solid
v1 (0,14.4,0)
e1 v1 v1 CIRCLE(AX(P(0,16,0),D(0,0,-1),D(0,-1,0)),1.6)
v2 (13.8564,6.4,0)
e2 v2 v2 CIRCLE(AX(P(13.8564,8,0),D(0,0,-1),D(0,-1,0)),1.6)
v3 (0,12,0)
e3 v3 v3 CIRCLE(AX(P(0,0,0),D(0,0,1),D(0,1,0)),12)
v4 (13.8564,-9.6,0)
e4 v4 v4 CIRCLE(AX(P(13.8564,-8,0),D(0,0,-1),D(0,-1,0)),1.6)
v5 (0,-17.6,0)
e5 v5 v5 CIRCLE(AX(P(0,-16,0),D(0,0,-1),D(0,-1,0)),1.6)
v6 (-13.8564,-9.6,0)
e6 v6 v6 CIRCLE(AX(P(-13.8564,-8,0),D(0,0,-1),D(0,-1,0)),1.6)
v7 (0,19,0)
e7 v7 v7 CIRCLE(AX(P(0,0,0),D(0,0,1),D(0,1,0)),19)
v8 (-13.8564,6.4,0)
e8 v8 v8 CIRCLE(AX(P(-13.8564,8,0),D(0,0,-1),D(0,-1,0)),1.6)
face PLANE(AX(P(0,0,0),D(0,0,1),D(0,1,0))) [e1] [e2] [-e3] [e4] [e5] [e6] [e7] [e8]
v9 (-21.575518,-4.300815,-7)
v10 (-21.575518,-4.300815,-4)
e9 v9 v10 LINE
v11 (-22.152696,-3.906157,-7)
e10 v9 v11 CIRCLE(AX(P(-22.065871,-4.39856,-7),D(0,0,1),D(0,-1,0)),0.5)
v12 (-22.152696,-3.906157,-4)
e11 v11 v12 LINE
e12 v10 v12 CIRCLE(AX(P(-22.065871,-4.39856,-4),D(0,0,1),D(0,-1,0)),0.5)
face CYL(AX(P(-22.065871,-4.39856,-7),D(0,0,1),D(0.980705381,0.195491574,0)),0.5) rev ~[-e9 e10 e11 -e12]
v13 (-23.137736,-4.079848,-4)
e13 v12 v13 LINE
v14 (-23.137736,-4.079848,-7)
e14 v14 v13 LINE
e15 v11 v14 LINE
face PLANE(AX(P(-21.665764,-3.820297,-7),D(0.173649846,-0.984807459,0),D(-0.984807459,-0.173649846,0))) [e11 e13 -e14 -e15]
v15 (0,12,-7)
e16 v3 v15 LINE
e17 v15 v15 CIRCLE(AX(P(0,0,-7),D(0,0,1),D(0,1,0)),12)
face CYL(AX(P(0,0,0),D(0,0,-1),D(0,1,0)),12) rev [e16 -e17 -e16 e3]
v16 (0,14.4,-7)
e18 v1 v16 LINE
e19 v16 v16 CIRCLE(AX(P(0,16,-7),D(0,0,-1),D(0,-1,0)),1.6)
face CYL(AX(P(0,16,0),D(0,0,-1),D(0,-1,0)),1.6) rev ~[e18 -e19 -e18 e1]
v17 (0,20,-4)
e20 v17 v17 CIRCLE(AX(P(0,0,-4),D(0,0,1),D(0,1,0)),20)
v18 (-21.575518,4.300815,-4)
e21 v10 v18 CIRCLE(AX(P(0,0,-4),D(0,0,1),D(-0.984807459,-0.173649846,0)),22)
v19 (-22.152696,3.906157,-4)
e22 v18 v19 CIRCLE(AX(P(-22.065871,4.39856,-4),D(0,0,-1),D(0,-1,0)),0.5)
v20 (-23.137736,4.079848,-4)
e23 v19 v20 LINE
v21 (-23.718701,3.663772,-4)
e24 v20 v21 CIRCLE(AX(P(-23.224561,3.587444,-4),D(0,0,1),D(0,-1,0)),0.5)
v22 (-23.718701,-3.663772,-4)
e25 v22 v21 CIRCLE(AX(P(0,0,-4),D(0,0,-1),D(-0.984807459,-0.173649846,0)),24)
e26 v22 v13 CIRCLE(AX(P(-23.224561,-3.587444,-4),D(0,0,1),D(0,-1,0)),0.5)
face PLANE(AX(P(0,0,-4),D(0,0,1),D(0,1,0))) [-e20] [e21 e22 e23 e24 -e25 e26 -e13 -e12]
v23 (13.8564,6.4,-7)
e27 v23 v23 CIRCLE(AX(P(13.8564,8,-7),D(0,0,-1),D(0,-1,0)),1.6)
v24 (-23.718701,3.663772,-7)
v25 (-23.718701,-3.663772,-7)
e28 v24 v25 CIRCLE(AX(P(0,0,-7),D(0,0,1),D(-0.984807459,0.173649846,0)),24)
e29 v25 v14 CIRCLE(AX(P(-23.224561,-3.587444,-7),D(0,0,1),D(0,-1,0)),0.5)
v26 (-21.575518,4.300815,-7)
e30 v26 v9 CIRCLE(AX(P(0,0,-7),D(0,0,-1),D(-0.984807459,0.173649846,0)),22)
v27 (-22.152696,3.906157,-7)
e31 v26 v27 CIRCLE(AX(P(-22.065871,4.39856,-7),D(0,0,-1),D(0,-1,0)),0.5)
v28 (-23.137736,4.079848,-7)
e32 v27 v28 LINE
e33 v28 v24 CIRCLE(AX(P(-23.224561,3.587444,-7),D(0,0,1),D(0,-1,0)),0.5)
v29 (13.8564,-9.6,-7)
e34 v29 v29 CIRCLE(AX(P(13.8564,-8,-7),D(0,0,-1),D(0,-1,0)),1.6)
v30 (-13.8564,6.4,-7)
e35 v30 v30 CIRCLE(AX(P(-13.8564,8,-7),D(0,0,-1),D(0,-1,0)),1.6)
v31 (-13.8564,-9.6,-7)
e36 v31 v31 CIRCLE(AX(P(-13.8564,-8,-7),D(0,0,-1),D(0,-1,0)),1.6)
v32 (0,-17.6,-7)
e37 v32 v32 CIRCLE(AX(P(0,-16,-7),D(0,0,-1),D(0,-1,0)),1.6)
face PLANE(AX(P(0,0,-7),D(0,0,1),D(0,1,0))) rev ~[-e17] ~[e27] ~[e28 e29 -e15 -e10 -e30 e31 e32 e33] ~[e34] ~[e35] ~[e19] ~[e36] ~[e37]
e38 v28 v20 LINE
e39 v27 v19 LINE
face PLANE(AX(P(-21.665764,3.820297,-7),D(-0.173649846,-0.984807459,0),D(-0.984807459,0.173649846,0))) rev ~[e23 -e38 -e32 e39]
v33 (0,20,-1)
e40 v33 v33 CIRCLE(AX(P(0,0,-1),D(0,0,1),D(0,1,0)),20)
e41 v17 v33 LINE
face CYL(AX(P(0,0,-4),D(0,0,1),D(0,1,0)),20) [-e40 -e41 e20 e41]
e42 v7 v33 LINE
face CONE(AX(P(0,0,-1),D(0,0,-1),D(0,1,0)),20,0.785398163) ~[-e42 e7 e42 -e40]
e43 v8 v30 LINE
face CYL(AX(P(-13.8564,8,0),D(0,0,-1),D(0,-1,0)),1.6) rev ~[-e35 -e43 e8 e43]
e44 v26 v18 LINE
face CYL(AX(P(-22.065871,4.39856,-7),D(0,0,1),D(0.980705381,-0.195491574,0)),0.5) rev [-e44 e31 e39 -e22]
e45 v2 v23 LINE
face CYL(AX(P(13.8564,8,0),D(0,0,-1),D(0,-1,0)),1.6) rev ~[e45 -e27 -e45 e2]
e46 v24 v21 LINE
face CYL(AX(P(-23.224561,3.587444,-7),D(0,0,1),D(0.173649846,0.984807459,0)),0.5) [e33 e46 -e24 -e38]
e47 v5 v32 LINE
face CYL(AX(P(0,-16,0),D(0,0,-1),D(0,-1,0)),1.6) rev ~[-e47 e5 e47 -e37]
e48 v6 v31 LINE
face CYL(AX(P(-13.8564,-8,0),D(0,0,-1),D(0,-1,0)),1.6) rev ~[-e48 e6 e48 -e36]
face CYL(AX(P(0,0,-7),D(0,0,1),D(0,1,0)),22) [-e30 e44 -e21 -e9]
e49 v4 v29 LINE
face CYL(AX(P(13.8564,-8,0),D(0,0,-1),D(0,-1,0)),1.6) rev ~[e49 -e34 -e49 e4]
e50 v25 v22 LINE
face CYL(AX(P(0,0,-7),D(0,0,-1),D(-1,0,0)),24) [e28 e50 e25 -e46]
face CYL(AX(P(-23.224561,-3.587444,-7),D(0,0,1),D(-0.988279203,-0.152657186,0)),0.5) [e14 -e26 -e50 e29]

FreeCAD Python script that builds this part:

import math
import FreeCAD as App
import Part
import Sketcher
from FreeCAD import Vector
Q = App.Units.Quantity


def edges_at(feature, points):
    """Names of the edges that pass closest to the given points."""
    edges = feature.Shape.Edges
    near = lambda p: min(range(len(edges)), key=lambda i: edges[i].distToShape(Part.Vertex(*p))[0])
    return sorted({f"Edge{near(p) + 1}" for p in points})

doc = App.newDocument("Part")
body = doc.addObject("PartDesign::Body", "Body")

sketch1 = body.newObject("Sketcher::SketchObject", "Sketch")
sketch1.AttachmentSupport = (doc.getObject("YZ_Plane"), [""])
sketch1.MapMode = "FlatFace"
sketch1.addGeometry(Part.LineSegment(Vector(20, 0, 0), Vector(12, 0, 0)), False)
sketch1.addGeometry(Part.LineSegment(Vector(12, 0, 0), Vector(12, -7, 0)), False)
sketch1.addGeometry(Part.LineSegment(Vector(12, -7, 0), Vector(22, -7, 0)), False)
sketch1.addGeometry(Part.LineSegment(Vector(22, -7, 0), Vector(22, -4, 0)), False)
sketch1.addGeometry(Part.LineSegment(Vector(22, -4, 0), Vector(20, -4, 0)), False)
sketch1.addGeometry(Part.LineSegment(Vector(20, -4, 0), Vector(20, 0, 0)), False)
sketch1.addConstraint(Sketcher.Constraint("Coincident", 0, 2, 1, 1))
sketch1.addConstraint(Sketcher.Constraint("Coincident", 1, 2, 2, 1))
sketch1.addConstraint(Sketcher.Constraint("Coincident", 2, 2, 3, 1))
sketch1.addConstraint(Sketcher.Constraint("Coincident", 3, 2, 4, 1))
sketch1.addConstraint(Sketcher.Constraint("Coincident", 4, 2, 5, 1))
sketch1.addConstraint(Sketcher.Constraint("Coincident", 5, 2, 0, 1))
sketch1.addConstraint(Sketcher.Constraint("Horizontal", 0))
sketch1.addConstraint(Sketcher.Constraint("Vertical", 1))
sketch1.addConstraint(Sketcher.Constraint("Horizontal", 2))
sketch1.addConstraint(Sketcher.Constraint("Vertical", 3))
sketch1.addConstraint(Sketcher.Constraint("Horizontal", 4))
sketch1.addConstraint(Sketcher.Constraint("Vertical", 5))
sketch1.addConstraint(Sketcher.Constraint("PointOnObject", 0, 2, -1))
sketch1.addConstraint(Sketcher.Constraint("DistanceX", 0, 2, 0, 1, Q("8 mm")))
sketch1.addConstraint(Sketcher.Constraint("DistanceX", 4, 2, 4, 1, Q("2 mm")))
sketch1.addConstraint(Sketcher.Constraint("DistanceY", 3, 1, 3, 2, Q("3 mm")))
sketch1.addConstraint(Sketcher.Constraint("DistanceY", 5, 1, 5, 2, Q("4 mm")))
sketch1.addConstraint(Sketcher.Constraint("DistanceX", -1, 1, 4, 2, Q("20 mm")))
revolution = body.newObject("PartDesign::Revolution", "Revolution")
revolution.Profile = sketch1
revolution.ReferenceAxis = (sketch1, ["V_Axis"])
revolution.Angle = 360

sketch2 = body.newObject("Sketcher::SketchObject", "Sketch001")
sketch2.AttachmentSupport = (doc.getObject("XY_Plane"), [""])
sketch2.MapMode = "FlatFace"
sketch2.addGeometry(Part.Circle(Vector(0, 16, 0), Vector(0, 0, 1), 1.6), False)
sketch2.addGeometry(Part.Circle(Vector(-13.9, 8, 0), Vector(0, 0, 1), 1.6), False)
sketch2.addGeometry(Part.Circle(Vector(-13.9, -8, 0), Vector(0, 0, 1), 1.6), False)
sketch2.addGeometry(Part.Circle(Vector(0, -16, 0), Vector(0, 0, 1), 1.6), False)
sketch2.addGeometry(Part.Circle(Vector(13.9, -8, 0), Vector(0, 0, 1), 1.6), False)
sketch2.addGeometry(Part.Circle(Vector(13.9, 8, 0), Vector(0, 0, 1), 1.6), False)
sketch2.addConstraint(Sketcher.Constraint("Equal", 0, 1))
sketch2.addConstraint(Sketcher.Constraint("Equal", 1, 2))
sketch2.addConstraint(Sketcher.Constraint("Equal", 2, 3))
sketch2.addConstraint(Sketcher.Constraint("Equal", 3, 4))
sketch2.addConstraint(Sketcher.Constraint("Equal", 4, 5))
sketch2.addConstraint(Sketcher.Constraint("Symmetric", 0, 3, 3, 3, -1, 1))
sketch2.addConstraint(Sketcher.Constraint("Symmetric", 1, 3, 4, 3, -1, 1))
sketch2.addConstraint(Sketcher.Constraint("Symmetric", 2, 3, 5, 3, -1, 1))
sketch2.addConstraint(Sketcher.Constraint("Symmetric", 2, 3, 4, 3, -2))
sketch2.addConstraint(Sketcher.Constraint("PointOnObject", 0, 3, -2))
sketch2.addConstraint(Sketcher.Constraint("Diameter", 0, Q("3.2 mm")))
sketch2.addConstraint(Sketcher.Constraint("DistanceY", -1, 1, 0, 3, Q("16 mm")))
sketch2.addConstraint(Sketcher.Constraint("DistanceY", -1, 1, 1, 3, Q("8 mm")))
sketch2.addConstraint(Sketcher.Constraint("DistanceX", 1, 3, -1, 1, Q("13.8564 mm")))
doc.recompute()
hole = body.newObject("PartDesign::Hole", "Hole")
hole.Profile = sketch2
hole.ThreadType = "None"
hole.Diameter = 3.2
hole.DepthType = "ThroughAll"
doc.recompute()

chamfer = body.newObject("PartDesign::Chamfer", "Chamfer")
chamfer.Base = (hole, edges_at(hole, [(0, -20, 0)]))
chamfer.Size = 1

sketch3 = body.newObject("Sketcher::SketchObject", "Sketch002")
sketch3.AttachmentSupport = (doc.getObject("XY_Plane"), [""])
sketch3.MapMode = "FlatFace"
sketch3.AttachmentOffset = App.Placement(Vector(0, 0, -7), App.Rotation())
sketch3.addGeometry(Part.ArcOfCircle(Part.Circle(Vector(0, 0, 0), Vector(0, 0, 1), 24), math.radians(170), math.radians(190)), False)
sketch3.addGeometry(Part.LineSegment(Vector(-23.6, 4.2, 0), Vector(-21.7, 3.8, 0)), False)
sketch3.addGeometry(Part.ArcOfCircle(Part.Circle(Vector(0, 0, 0), Vector(0, 0, 1), 22), math.radians(170), math.radians(190)), False)
sketch3.addGeometry(Part.LineSegment(Vector(-21.7, -3.8, 0), Vector(-23.6, -4.2, 0)), False)
sketch3.addConstraint(Sketcher.Constraint("Coincident", 0, 1, 1, 1))
sketch3.addConstraint(Sketcher.Constraint("Coincident", 1, 2, 2, 1))
sketch3.addConstraint(Sketcher.Constraint("Coincident", 2, 2, 3, 1))
sketch3.addConstraint(Sketcher.Constraint("Coincident", 3, 2, 0, 2))
sketch3.addConstraint(Sketcher.Constraint("Coincident", 0, 3, -1, 1))
sketch3.addConstraint(Sketcher.Constraint("Coincident", 2, 3, -1, 1))
sketch3.addConstraint(Sketcher.Constraint("Vertical", 1, 2, 2, 2))
sketch3.addConstraint(Sketcher.Constraint("Vertical", 0, 1, 3, 2))
sketch3.addConstraint(Sketcher.Constraint("Angle", 1, Q("-10 deg")))
sketch3.addConstraint(Sketcher.Constraint("Distance", 1, Q("2 mm")))
sketch3.addConstraint(Sketcher.Constraint("Radius", 0, Q("24 mm")))
sketch3.addConstraint(Sketcher.Constraint("DistanceY", 2, 2, 0, 1, Q("7.988 mm")))
pad1 = body.newObject("PartDesign::Pad", "Pad")
pad1.Profile = sketch3
pad1.Length = 3
doc.recompute()

fillet = body.newObject("PartDesign::Fillet", "Fillet")
fillet.Base = (pad1, edges_at(pad1, [
    (-23.635, -4.168, -5.5),
    (-21.666, -3.82, -5.5),
    (-23.635, 4.168, -5.5),
    (-21.666, 3.82, -5.5),
]))
fillet.Radius = 0.5

doc.recompute()
